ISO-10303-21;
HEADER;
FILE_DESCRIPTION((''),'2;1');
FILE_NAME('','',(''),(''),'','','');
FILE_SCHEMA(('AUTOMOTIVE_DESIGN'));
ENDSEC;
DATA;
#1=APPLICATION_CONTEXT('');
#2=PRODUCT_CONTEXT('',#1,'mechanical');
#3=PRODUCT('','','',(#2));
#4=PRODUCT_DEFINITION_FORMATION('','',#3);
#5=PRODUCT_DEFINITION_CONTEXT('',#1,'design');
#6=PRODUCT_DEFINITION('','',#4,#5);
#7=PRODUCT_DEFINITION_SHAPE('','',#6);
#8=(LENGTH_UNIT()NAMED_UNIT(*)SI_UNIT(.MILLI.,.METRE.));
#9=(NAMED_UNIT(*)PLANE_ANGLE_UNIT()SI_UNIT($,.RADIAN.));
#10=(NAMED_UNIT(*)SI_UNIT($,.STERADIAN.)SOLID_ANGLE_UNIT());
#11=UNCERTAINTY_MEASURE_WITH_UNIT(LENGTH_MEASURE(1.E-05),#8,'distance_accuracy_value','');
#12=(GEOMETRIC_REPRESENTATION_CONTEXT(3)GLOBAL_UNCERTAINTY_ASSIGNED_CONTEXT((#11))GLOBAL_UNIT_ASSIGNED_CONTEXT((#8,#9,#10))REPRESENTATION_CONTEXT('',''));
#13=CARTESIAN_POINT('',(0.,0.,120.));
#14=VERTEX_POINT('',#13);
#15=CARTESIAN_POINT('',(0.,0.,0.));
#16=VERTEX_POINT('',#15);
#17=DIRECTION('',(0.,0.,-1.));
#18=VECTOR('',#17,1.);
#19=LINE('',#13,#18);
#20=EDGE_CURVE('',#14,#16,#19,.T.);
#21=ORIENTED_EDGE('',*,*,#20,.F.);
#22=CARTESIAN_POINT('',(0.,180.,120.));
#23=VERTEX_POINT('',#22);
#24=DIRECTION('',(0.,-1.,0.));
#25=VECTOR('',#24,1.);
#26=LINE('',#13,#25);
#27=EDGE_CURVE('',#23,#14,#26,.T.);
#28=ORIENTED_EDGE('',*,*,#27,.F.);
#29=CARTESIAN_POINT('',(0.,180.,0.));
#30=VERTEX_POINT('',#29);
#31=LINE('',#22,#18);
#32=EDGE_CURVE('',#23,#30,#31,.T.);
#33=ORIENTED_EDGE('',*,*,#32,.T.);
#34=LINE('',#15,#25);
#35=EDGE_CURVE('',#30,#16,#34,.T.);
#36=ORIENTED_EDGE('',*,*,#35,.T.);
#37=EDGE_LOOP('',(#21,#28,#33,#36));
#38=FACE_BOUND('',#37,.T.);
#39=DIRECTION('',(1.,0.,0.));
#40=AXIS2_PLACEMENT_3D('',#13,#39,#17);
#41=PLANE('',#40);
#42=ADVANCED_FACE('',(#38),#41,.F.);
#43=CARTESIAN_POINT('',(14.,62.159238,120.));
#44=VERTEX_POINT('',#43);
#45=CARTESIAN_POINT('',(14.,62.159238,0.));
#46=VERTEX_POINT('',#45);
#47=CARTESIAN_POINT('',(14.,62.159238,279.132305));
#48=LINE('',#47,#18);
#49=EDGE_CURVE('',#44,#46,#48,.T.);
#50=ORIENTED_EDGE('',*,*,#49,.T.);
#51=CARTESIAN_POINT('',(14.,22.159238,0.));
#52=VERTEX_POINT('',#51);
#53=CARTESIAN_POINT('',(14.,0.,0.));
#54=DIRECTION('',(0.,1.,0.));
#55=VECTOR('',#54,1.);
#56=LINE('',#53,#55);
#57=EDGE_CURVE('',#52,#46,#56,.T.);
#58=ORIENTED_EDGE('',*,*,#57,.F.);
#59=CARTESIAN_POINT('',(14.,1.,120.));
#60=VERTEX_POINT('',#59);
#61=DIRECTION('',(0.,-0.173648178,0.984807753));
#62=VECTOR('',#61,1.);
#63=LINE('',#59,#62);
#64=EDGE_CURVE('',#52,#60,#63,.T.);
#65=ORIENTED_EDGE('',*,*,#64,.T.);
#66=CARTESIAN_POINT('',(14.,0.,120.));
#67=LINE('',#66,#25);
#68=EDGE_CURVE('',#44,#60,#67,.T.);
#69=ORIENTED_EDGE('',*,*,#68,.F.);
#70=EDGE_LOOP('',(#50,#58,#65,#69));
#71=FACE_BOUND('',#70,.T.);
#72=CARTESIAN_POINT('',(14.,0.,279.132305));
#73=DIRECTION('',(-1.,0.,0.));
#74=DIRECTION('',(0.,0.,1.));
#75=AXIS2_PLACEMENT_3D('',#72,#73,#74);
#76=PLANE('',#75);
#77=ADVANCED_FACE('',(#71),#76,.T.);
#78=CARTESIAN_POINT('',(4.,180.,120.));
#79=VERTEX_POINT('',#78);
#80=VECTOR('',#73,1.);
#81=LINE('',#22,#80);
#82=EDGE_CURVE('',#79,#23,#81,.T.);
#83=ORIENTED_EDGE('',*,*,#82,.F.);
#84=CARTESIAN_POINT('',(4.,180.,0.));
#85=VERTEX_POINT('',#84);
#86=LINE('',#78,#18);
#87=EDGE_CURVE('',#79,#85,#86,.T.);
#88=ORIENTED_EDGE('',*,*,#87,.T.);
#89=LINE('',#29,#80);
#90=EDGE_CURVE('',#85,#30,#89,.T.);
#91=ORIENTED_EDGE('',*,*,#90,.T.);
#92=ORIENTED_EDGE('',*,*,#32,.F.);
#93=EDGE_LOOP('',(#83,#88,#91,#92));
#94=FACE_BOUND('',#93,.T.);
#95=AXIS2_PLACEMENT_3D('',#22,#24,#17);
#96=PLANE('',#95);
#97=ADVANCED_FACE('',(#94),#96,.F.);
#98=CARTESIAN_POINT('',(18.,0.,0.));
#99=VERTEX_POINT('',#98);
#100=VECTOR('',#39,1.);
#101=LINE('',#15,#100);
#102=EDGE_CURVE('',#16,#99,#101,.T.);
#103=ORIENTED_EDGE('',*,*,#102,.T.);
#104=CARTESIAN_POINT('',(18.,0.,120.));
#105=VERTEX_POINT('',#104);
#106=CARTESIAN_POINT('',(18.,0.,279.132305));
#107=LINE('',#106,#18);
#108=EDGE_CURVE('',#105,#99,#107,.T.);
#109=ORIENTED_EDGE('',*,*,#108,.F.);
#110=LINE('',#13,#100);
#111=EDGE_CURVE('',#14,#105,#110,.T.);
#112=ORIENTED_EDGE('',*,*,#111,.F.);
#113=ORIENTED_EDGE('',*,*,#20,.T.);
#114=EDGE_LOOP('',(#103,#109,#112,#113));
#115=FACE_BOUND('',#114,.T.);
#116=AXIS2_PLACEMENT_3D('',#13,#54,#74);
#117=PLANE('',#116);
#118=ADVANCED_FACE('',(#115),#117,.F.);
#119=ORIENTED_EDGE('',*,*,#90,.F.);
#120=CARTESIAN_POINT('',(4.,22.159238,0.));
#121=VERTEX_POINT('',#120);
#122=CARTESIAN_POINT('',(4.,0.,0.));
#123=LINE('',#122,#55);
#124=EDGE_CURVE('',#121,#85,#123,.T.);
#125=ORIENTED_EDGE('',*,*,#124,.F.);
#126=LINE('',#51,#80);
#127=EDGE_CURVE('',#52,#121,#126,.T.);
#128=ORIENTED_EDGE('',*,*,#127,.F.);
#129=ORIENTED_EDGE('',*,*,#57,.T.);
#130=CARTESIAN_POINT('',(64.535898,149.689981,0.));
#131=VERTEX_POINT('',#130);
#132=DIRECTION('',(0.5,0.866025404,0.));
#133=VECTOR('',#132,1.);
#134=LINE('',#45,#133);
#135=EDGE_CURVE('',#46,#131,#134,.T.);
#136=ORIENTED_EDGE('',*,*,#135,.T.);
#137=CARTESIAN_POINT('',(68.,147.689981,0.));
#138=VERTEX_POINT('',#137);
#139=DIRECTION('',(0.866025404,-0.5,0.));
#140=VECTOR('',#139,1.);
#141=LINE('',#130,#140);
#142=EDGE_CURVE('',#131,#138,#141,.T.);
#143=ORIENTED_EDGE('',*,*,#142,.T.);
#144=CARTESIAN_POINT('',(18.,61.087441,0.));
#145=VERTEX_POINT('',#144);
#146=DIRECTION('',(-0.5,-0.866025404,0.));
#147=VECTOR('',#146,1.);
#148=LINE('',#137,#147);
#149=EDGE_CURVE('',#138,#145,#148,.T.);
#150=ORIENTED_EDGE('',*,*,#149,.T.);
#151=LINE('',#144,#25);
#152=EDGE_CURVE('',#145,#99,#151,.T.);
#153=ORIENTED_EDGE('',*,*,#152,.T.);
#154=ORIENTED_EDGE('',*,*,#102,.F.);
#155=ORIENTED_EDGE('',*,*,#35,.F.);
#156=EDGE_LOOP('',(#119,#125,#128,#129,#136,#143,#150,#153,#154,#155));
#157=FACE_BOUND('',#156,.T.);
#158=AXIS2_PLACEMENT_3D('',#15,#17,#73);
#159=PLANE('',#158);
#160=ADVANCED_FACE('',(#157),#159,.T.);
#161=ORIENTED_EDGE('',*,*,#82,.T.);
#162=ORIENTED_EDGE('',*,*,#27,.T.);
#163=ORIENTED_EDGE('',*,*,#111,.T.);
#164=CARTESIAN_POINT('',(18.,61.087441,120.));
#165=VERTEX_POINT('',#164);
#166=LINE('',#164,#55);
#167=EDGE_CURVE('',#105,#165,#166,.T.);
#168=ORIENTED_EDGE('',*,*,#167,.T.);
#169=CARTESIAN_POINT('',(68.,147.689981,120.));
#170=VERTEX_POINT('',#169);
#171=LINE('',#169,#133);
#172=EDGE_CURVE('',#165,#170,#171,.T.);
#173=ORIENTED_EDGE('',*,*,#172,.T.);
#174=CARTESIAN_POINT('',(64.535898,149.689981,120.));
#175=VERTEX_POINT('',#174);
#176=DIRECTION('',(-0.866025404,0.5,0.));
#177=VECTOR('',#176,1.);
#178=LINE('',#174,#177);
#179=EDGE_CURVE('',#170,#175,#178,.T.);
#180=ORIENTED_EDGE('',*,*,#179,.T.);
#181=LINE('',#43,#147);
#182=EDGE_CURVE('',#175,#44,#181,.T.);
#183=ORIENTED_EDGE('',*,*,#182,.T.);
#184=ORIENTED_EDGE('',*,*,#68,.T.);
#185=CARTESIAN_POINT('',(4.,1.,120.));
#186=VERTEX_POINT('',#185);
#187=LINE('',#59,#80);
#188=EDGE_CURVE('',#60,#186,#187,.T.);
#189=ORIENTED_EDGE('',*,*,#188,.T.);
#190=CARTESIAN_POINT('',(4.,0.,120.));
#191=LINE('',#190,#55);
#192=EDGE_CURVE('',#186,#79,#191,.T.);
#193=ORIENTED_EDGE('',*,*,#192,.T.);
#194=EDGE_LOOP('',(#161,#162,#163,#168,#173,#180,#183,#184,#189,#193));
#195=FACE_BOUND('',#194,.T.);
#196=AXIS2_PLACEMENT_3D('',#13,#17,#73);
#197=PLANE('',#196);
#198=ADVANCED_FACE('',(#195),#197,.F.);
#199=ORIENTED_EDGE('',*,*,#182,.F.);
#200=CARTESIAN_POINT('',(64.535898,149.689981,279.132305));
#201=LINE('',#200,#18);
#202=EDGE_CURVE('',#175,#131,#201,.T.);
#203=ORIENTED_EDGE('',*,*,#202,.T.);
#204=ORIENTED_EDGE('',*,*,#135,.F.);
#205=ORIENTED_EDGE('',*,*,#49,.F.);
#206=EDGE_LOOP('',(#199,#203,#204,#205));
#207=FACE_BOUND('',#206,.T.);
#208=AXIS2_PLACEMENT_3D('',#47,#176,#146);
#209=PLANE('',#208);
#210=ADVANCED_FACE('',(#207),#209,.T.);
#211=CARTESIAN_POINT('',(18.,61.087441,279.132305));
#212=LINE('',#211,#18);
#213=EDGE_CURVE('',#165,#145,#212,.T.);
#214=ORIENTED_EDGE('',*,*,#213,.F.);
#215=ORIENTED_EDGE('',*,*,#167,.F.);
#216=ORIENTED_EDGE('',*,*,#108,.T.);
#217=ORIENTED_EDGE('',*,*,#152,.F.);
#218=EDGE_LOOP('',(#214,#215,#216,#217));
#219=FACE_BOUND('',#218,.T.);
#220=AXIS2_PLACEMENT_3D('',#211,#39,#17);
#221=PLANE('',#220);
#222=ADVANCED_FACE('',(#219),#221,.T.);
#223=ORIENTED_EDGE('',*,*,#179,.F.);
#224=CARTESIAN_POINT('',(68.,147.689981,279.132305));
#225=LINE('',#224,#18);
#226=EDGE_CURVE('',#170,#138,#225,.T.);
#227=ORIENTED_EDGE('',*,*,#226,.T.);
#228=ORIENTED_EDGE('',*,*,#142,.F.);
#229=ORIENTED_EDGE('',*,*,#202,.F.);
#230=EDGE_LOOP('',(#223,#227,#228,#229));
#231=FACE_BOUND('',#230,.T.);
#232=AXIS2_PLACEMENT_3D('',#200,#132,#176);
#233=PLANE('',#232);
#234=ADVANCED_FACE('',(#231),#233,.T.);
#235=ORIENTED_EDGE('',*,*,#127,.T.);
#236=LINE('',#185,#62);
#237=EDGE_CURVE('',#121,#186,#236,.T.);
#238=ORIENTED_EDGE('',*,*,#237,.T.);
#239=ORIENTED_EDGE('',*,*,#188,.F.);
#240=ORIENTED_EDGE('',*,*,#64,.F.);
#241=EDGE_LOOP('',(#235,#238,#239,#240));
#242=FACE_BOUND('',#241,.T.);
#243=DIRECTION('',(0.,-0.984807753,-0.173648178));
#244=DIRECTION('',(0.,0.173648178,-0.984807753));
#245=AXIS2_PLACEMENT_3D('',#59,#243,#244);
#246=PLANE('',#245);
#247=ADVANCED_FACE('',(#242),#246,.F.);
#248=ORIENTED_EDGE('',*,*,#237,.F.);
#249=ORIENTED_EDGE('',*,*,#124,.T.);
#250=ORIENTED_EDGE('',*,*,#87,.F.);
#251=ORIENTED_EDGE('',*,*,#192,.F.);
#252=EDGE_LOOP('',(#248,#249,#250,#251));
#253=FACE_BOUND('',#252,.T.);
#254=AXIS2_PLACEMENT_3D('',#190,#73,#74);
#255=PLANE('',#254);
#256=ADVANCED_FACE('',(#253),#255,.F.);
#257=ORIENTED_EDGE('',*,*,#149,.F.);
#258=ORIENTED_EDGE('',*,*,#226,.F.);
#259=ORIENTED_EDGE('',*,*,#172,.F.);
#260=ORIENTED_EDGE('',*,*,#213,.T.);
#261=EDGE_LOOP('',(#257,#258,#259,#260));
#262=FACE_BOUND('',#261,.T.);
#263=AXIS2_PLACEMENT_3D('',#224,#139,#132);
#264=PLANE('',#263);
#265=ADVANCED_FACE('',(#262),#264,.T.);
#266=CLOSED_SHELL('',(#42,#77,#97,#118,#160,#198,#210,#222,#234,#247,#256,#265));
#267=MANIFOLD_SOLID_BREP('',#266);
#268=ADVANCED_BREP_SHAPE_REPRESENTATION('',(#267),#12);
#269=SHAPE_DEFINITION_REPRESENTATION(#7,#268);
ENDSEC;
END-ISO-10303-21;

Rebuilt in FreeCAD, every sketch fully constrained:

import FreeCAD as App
import Part
import Sketcher
from FreeCAD import Vector
Q = App.Units.Quantity


def add_polygon(sketch, points):
    """Adds a closed chain of lines whose ends are joined by coincident constraints."""
    first, n = sketch.GeometryCount, len(points)
    for a, b in zip(points, points[1:] + points[:1]):
        sketch.addGeometry(Part.LineSegment(App.Vector(*a, 0), App.Vector(*b, 0)), False)
    for i in range(n):
        sketch.addConstraint(Sketcher.Constraint("Coincident", first + i, 2, first + (i + 1) % n, 1))

doc = App.newDocument("Part")
params = doc.addObject("Spreadsheet::Sheet", "Params")
for row, (alias, value) in enumerate([
    ("sketch1_width", "4 mm"),
    ("sketch1_height", "180 mm"),
    ("pad1_length", "120 mm"),
    ("sketch2_width", "1 mm"),
    ("sketch2_height", "120 mm"),
    ("pad2_length", "10 mm"),
    ("sketch3_width", "4 mm"),
    ("sketch3_length", "4 mm"),
    ("sketch3_length2", "100 mm"),
    ("pad3_length", "120 mm"),
], start=1):
    params.set(f"A{row}", alias)
    params.set(f"B{row}", "=" + value)
    params.setAlias(f"B{row}", alias)

body = doc.addObject("PartDesign::Body", "Body")

# Sketch on XY plane
sketch1 = doc.addObject("Sketcher::SketchObject", "Sketch")
body.addObject(sketch1)
sketch1.AttachmentSupport = (doc.XY_Plane, [""])
sketch1.MapMode = "FlatFace"
add_polygon(sketch1, [(0, 180), (0, 0), (4, 0), (4, 180)])  # lines 0-3
sketch1.addConstraint(Sketcher.Constraint("Vertical", 0))
sketch1.addConstraint(Sketcher.Constraint("Horizontal", 1))
sketch1.addConstraint(Sketcher.Constraint("Vertical", 2))
sketch1.addConstraint(Sketcher.Constraint("Horizontal", 3))
sketch1.addConstraint(Sketcher.Constraint("Coincident", 0, 2, -1, 1))
sketch1.addConstraint(Sketcher.Constraint("DistanceX", 1, 1, 1, 2, Q("4 mm")))
sketch1.addConstraint(Sketcher.Constraint("DistanceY", 0, 2, 0, 1, Q("180 mm")))
sketch1.setExpression("Constraints[9]", "Params.sketch1_width")
sketch1.setExpression("Constraints[10]", "Params.sketch1_height")
pad1 = doc.addObject("PartDesign::Pad", "Pad")
body.addObject(pad1)
pad1.Profile = sketch1
pad1.setExpression("Length", "Params.pad1_length")

# Sketch on YZ plane
sketch2 = doc.addObject("Sketcher::SketchObject", "Sketch001")
body.addObject(sketch2)
sketch2.AttachmentSupport = (doc.YZ_Plane, [""])
sketch2.MapMode = "FlatFace"
sketch2.AttachmentOffset = App.Placement(Vector(0, 0, 4), App.Rotation())
add_polygon(sketch2, [(1, 120), (0, 120), (0, 0), (22.159238, 0)])  # lines 0-3
sketch2.addConstraint(Sketcher.Constraint("Horizontal", 0))
sketch2.addConstraint(Sketcher.Constraint("Vertical", 1))
sketch2.addConstraint(Sketcher.Constraint("Horizontal", 2))
sketch2.addConstraint(Sketcher.Constraint("Coincident", 1, 2, -1, 1))
sketch2.addConstraint(Sketcher.Constraint("DistanceX", 0, 2, 0, 1, Q("1 mm")))
sketch2.addConstraint(Sketcher.Constraint("DistanceY", 1, 2, 1, 1, Q("120 mm")))
sketch2.addConstraint(Sketcher.Constraint("Angle", 3, Q("100 deg")))
sketch2.setExpression("Constraints[8]", "Params.sketch2_width")
sketch2.setExpression("Constraints[9]", "Params.sketch2_height")
pad2 = doc.addObject("PartDesign::Pad", "Pad001")
body.addObject(pad2)
pad2.Profile = sketch2
pad2.setExpression("Length", "Params.pad2_length")

# Sketch on XY plane
sketch3 = doc.addObject("Sketcher::SketchObject", "Sketch002")
body.addObject(sketch3)
sketch3.AttachmentSupport = (doc.XY_Plane, [""])
sketch3.MapMode = "FlatFace"
add_polygon(sketch3, [(14, 0), (14, 62.159238), (64.535898, 149.689981), (68, 147.689981), (18, 61.087441), (18, 0)])  # lines 0-5
sketch3.addConstraint(Sketcher.Constraint("Vertical", 0))
sketch3.addConstraint(Sketcher.Constraint("Vertical", 4))
sketch3.addConstraint(Sketcher.Constraint("Horizontal", 5))
sketch3.addConstraint(Sketcher.Constraint("PointOnObject", 4, 2, -1))
sketch3.addConstraint(Sketcher.Constraint("Perpendicular", 1, 2))
sketch3.addConstraint(Sketcher.Constraint("Perpendicular", 2, 3))
sketch3.addConstraint(Sketcher.Constraint("DistanceX", 5, 2, 5, 1, Q("4 mm")))
sketch3.addConstraint(Sketcher.Constraint("Angle", 1, Q("60 deg")))
sketch3.addConstraint(Sketcher.Constraint("Distance", 2, Q("4 mm")))
sketch3.addConstraint(Sketcher.Constraint("Distance", 3, Q("100 mm")))
sketch3.addConstraint(Sketcher.Constraint("DistanceX", -1, 1, 0, 2, Q("14 mm")))
sketch3.addConstraint(Sketcher.Constraint("DistanceY", 4, 2, 4, 1, Q("61.087441 mm")))
sketch3.setExpression("Constraints[12]", "Params.sketch3_width")
sketch3.setExpression("Constraints[14]", "Params.sketch3_length")
sketch3.setExpression("Constraints[15]", "Params.sketch3_length2")
pad3 = doc.addObject("PartDesign::Pad", "Pad002")
body.addObject(pad3)
pad3.Profile = sketch3
pad3.setExpression("Length", "Params.pad3_length")

doc.recompute()
